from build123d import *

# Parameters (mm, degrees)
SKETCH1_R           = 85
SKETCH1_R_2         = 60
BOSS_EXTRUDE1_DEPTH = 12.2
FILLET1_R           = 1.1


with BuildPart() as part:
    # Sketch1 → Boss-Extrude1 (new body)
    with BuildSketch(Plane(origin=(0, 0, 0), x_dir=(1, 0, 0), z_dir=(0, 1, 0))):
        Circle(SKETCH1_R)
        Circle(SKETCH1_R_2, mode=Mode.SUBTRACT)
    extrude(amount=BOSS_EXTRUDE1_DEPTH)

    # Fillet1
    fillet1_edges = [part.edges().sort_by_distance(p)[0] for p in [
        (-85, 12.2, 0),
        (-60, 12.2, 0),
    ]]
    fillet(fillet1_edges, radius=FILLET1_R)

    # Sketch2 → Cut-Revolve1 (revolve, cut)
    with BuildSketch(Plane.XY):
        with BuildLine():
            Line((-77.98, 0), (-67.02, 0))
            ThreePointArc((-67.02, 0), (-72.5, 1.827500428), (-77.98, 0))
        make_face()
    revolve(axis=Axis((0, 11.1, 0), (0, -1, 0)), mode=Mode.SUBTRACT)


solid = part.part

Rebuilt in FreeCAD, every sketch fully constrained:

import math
import FreeCAD as App
import Part
import Sketcher


def edges_at(feature, points):
    """Names of the edges that pass closest to the given points."""
    edges = feature.Shape.Edges
    near = lambda p: min(range(len(edges)), key=lambda i: edges[i].distToShape(Part.Vertex(*p))[0])
    return sorted({f"Edge{near(p) + 1}" for p in points})

doc = App.newDocument("Part")
body = doc.addObject("PartDesign::Body", "Body")

# Sketch on XZ plane
sketch1 = body.newObject("Sketcher::SketchObject", "Sketch")
sketch1.AttachmentSupport = (doc.getObject("XZ_Plane"), [""])
sketch1.MapMode = "FlatFace"
sketch1.addGeometry(Part.Circle(App.Vector(0, 0, 0), App.Vector(0, 0, 1), 85), False)
sketch1.addGeometry(Part.Circle(App.Vector(0, 0, 0), App.Vector(0, 0, 1), 60), False)
sketch1.addConstraint(Sketcher.Constraint("Coincident", 0, 3, -1, 1))
sketch1.addConstraint(Sketcher.Constraint("Coincident", 1, 3, -1, 1))
sketch1.addConstraint(Sketcher.Constraint("Diameter", 0, 170.0))
sketch1.addConstraint(Sketcher.Constraint("Diameter", 1, 120.0))
pad1 = body.newObject("PartDesign::Pad", "Pad")
pad1.Profile = sketch1
pad1.Length = 12.2
pad1.Reversed = True
doc.recompute()

fillet = body.newObject("PartDesign::Fillet", "Fillet")
fillet.Base = (pad1, edges_at(pad1, [(-85, 12.2, 0), (-60, 12.2, 0)]))
fillet.Radius = 1.1

# Sketch on XY plane
sketch2 = body.newObject("Sketcher::SketchObject", "Sketch001")
sketch2.AttachmentSupport = (doc.getObject("XY_Plane"), [""])
sketch2.MapMode = "FlatFace"
sketch2.addGeometry(Part.LineSegment(App.Vector(-77.98, 0, 0), App.Vector(-67.02, 0, 0)), False)
sketch2.addGeometry(Part.ArcOfCircle(Part.Circle(App.Vector(-72.5, -7.3025, 0), App.Vector(0, 0, 1), 9.13), math.radians(53.114412), math.radians(126.885588)), False)
sketch2.addConstraint(Sketcher.Constraint("Coincident", 0, 1, 1, 2))
sketch2.addConstraint(Sketcher.Constraint("Coincident", 1, 1, 0, 2))
sketch2.addConstraint(Sketcher.Constraint("Horizontal", 0))
sketch2.addConstraint(Sketcher.Constraint("PointOnObject", 0, 1, -1))
sketch2.addConstraint(Sketcher.Constraint("Radius", 1, 9.13))
sketch2.addConstraint(Sketcher.Constraint("DistanceX", 0, 1, 0, 2, 10.96))
sketch2.addConstraint(Sketcher.Constraint("DistanceX", 1, 3, -1, 1, 72.5))
groove = body.newObject("PartDesign::Groove", "Groove")
groove.Profile = sketch2
groove.ReferenceAxis = (sketch2, ["V_Axis"])
groove.Angle = 360

doc.recompute()
